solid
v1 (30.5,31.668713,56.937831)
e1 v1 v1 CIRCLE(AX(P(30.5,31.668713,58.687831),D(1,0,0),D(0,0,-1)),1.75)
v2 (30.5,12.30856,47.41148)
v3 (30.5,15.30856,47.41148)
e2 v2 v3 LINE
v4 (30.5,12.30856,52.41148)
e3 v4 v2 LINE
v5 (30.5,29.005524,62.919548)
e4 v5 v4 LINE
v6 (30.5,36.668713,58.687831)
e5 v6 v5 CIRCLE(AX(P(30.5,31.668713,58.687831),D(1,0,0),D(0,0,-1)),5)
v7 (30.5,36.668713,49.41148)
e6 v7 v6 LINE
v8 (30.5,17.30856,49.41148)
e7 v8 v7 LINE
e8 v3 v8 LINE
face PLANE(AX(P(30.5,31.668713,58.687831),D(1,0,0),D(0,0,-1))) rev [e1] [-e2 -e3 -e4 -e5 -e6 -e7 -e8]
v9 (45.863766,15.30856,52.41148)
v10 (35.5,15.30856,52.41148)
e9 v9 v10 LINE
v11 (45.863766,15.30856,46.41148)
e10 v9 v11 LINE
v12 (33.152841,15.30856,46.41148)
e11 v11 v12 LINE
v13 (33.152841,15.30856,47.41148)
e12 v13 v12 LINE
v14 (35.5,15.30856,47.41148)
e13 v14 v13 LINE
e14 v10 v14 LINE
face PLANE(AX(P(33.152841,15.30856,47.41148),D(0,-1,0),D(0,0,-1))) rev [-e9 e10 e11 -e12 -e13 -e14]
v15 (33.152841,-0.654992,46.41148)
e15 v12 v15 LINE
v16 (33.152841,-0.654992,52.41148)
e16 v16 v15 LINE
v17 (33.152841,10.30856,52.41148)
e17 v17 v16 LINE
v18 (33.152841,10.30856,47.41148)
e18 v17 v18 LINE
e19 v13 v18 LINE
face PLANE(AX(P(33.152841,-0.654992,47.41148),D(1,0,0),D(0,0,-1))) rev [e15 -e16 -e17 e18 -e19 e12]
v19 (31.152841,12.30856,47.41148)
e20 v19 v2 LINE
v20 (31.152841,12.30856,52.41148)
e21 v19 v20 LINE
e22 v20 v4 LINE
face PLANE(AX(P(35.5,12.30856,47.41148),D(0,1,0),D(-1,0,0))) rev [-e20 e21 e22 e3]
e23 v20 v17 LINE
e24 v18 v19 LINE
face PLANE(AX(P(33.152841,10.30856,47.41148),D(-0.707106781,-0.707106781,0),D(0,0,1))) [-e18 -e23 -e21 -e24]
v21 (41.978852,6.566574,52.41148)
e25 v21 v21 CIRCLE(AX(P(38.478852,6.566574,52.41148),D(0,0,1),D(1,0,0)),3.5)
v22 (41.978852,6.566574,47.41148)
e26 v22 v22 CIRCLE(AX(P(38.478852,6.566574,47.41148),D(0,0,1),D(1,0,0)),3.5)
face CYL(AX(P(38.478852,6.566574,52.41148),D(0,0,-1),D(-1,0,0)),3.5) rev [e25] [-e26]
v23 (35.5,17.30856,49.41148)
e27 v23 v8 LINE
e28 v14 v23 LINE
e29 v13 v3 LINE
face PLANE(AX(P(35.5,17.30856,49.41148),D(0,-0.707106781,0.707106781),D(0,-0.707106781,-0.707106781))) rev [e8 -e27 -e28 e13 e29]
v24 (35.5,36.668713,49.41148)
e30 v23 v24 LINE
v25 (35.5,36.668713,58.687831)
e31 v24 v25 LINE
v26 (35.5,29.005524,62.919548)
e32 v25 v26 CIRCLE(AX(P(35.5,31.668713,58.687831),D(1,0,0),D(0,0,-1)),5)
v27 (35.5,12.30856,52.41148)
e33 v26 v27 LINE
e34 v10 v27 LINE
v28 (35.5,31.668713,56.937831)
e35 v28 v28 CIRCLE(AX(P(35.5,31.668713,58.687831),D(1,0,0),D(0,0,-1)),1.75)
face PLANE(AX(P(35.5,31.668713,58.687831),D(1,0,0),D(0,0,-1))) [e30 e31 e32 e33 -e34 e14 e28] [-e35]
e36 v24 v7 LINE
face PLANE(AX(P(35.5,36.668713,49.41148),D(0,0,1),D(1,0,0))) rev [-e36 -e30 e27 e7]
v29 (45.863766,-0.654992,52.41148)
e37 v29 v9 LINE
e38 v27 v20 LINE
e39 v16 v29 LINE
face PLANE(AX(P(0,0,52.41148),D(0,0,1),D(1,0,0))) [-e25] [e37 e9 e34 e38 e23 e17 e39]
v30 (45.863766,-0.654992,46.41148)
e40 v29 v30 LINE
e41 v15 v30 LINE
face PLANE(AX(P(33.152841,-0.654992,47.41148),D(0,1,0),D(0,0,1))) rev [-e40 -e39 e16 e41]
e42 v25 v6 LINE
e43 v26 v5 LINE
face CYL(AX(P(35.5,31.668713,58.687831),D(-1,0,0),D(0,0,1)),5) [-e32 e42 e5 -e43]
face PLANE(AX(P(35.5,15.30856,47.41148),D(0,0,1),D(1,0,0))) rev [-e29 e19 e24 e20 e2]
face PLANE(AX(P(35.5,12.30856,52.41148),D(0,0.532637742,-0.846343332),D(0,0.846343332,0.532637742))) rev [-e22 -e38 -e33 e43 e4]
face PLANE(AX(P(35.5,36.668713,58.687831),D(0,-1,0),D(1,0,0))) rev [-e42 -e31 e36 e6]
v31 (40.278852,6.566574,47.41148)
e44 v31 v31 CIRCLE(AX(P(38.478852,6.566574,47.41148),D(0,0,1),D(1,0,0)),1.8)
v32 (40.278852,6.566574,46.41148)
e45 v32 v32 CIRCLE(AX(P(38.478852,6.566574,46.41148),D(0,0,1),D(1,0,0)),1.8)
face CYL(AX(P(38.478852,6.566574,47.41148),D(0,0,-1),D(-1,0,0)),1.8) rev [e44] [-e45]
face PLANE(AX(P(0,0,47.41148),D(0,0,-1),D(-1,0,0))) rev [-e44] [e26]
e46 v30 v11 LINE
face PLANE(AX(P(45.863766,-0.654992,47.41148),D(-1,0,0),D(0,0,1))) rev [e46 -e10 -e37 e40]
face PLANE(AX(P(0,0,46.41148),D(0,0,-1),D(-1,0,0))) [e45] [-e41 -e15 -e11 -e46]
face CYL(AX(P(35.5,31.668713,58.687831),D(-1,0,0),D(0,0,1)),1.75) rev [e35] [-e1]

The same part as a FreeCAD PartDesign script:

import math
import FreeCAD as App
import Part
import Sketcher
from FreeCAD import Vector
Q = App.Units.Quantity


def edges_at(feature, points):
    """Names of the edges that pass closest to the given points."""
    edges = feature.Shape.Edges
    near = lambda p: min(range(len(edges)), key=lambda i: edges[i].distToShape(Part.Vertex(*p))[0])
    return sorted({f"Edge{near(p) + 1}" for p in points})

doc = App.newDocument("Part")
body = doc.addObject("PartDesign::Body", "Body")

sketch1 = body.newObject("Sketcher::SketchObject", "Sketch")
sketch1.AttachmentSupport = (doc.getObject("XY_Plane"), [""])
sketch1.MapMode = "FlatFace"
sketch1.AttachmentOffset = App.Placement(Vector(0, 0, 46.41148), App.Rotation())
sketch1.addGeometry(Part.LineSegment(Vector(33.2, 15.3, 0), Vector(33.2, -0.7, 0)), False)
sketch1.addGeometry(Part.LineSegment(Vector(33.2, -0.7, 0), Vector(45.9, -0.7, 0)), False)
sketch1.addGeometry(Part.LineSegment(Vector(45.9, -0.7, 0), Vector(45.9, 15.3, 0)), False)
sketch1.addGeometry(Part.LineSegment(Vector(45.9, 15.3, 0), Vector(33.2, 15.3, 0)), False)
sketch1.addGeometry(Part.Circle(Vector(38.5, 6.6, 0), Vector(0, 0, 1), 1.8), False)
sketch1.addConstraint(Sketcher.Constraint("Coincident", 0, 2, 1, 1))
sketch1.addConstraint(Sketcher.Constraint("Coincident", 1, 2, 2, 1))
sketch1.addConstraint(Sketcher.Constraint("Coincident", 2, 2, 3, 1))
sketch1.addConstraint(Sketcher.Constraint("Coincident", 3, 2, 0, 1))
sketch1.addConstraint(Sketcher.Constraint("Vertical", 0))
sketch1.addConstraint(Sketcher.Constraint("Horizontal", 1))
sketch1.addConstraint(Sketcher.Constraint("Vertical", 2))
sketch1.addConstraint(Sketcher.Constraint("Horizontal", 3))
sketch1.addConstraint(Sketcher.Constraint("Diameter", 4, Q("3.6 mm")))
sketch1.addConstraint(Sketcher.Constraint("DistanceX", 1, 1, 1, 2, Q("12.710925 mm")))
sketch1.addConstraint(Sketcher.Constraint("DistanceY", 0, 2, 0, 1, Q("15.963552 mm")))
sketch1.addConstraint(Sketcher.Constraint("DistanceX", -1, 1, 0, 2, Q("33.152841 mm")))
sketch1.addConstraint(Sketcher.Constraint("DistanceY", -1, 1, 2, 2, Q("15.30856 mm")))
sketch1.addConstraint(Sketcher.Constraint("DistanceX", 0, 2, 4, 3, Q("5.326012 mm")))
sketch1.addConstraint(Sketcher.Constraint("DistanceY", -1, 1, 4, 3, Q("6.566574 mm")))
pad1 = body.newObject("PartDesign::Pad", "Pad")
pad1.Profile = sketch1
pad1.Length = 1

sketch2 = body.newObject("Sketcher::SketchObject", "Sketch001")
sketch2.AttachmentSupport = (doc.getObject("YZ_Plane"), [""])
sketch2.MapMode = "FlatFace"
sketch2.AttachmentOffset = App.Placement(Vector(0, 0, 30.5), App.Rotation())
sketch2.addGeometry(Part.LineSegment(Vector(36.7, 49.4, 0), Vector(36.7, 58.7, 0)), False)
sketch2.addGeometry(Part.ArcOfCircle(Part.Circle(Vector(31.7, 58.7, 0), Vector(0, 0, 1), 5), math.radians(0), math.radians(122)), False)
sketch2.addGeometry(Part.LineSegment(Vector(29, 62.9, 0), Vector(12.3, 52.4, 0)), False)
sketch2.addGeometry(Part.LineSegment(Vector(12.3, 52.4, 0), Vector(12.3, 47.4, 0)), False)
sketch2.addGeometry(Part.LineSegment(Vector(12.3, 47.4, 0), Vector(15.3, 47.4, 0)), False)
sketch2.addGeometry(Part.LineSegment(Vector(15.3, 47.4, 0), Vector(17.3, 49.4, 0)), False)
sketch2.addGeometry(Part.LineSegment(Vector(17.3, 49.4, 0), Vector(36.7, 49.4, 0)), False)
sketch2.addGeometry(Part.Circle(Vector(31.7, 58.7, 0), Vector(0, 0, 1), 1.8), False)
sketch2.addConstraint(Sketcher.Constraint("Tangent", 0, 2, 1, 1))
sketch2.addConstraint(Sketcher.Constraint("Tangent", 1, 2, 2, 1))
sketch2.addConstraint(Sketcher.Constraint("Coincident", 2, 2, 3, 1))
sketch2.addConstraint(Sketcher.Constraint("Coincident", 3, 2, 4, 1))
sketch2.addConstraint(Sketcher.Constraint("Coincident", 4, 2, 5, 1))
sketch2.addConstraint(Sketcher.Constraint("Coincident", 5, 2, 6, 1))
sketch2.addConstraint(Sketcher.Constraint("Coincident", 6, 2, 0, 1))
sketch2.addConstraint(Sketcher.Constraint("Vertical", 0))
sketch2.addConstraint(Sketcher.Constraint("Vertical", 3))
sketch2.addConstraint(Sketcher.Constraint("Horizontal", 4))
sketch2.addConstraint(Sketcher.Constraint("Horizontal", 6))
sketch2.addConstraint(Sketcher.Constraint("Coincident", 7, 3, 1, 3))
sketch2.addConstraint(Sketcher.Constraint("Radius", 1, Q("5 mm")))
sketch2.addConstraint(Sketcher.Constraint("Diameter", 7, Q("3.5 mm")))
sketch2.addConstraint(Sketcher.Constraint("DistanceX", 4, 1, 4, 2, Q("3 mm")))
sketch2.addConstraint(Sketcher.Constraint("DistanceY", 3, 2, 3, 1, Q("5 mm")))
sketch2.addConstraint(Sketcher.Constraint("Angle", 5, Q("45 deg")))
sketch2.addConstraint(Sketcher.Constraint("DistanceX", 4, 2, 5, 2, Q("2 mm")))
sketch2.addConstraint(Sketcher.Constraint("DistanceY", 0, 1, 0, 2, Q("9.276351 mm")))
sketch2.addConstraint(Sketcher.Constraint("DistanceX", 6, 1, 6, 2, Q("19.360153 mm")))
sketch2.addConstraint(Sketcher.Constraint("DistanceY", -1, 1, 1, 3, Q("58.687831 mm")))
sketch2.addConstraint(Sketcher.Constraint("DistanceX", -1, 1, 2, 2, Q("12.30856 mm")))
pad2 = body.newObject("PartDesign::Pad", "Pad001")
pad2.Profile = sketch2
pad2.Length = 5

sketch3 = body.newObject("Sketcher::SketchObject", "Sketch002")
sketch3.AttachmentSupport = (doc.getObject("XY_Plane"), [""])
sketch3.MapMode = "FlatFace"
sketch3.AttachmentOffset = App.Placement(Vector(0, 0, 47.41148), App.Rotation())
sketch3.addGeometry(Part.LineSegment(Vector(35.5, 15.3, 0), Vector(35.5, 12.3, 0)), False)
sketch3.addGeometry(Part.LineSegment(Vector(35.5, 12.3, 0), Vector(33.2, 12.3, 0)), False)
sketch3.addGeometry(Part.LineSegment(Vector(33.2, 12.3, 0), Vector(33.2, -0.7, 0)), False)
sketch3.addGeometry(Part.LineSegment(Vector(33.2, -0.7, 0), Vector(45.9, -0.7, 0)), False)
sketch3.addGeometry(Part.LineSegment(Vector(45.9, -0.7, 0), Vector(45.9, 15.3, 0)), False)
sketch3.addGeometry(Part.LineSegment(Vector(45.9, 15.3, 0), Vector(35.5, 15.3, 0)), False)
sketch3.addGeometry(Part.Circle(Vector(38.5, 6.6, 0), Vector(0, 0, 1), 3.5), False)
sketch3.addConstraint(Sketcher.Constraint("Coincident", 0, 2, 1, 1))
sketch3.addConstraint(Sketcher.Constraint("Coincident", 1, 2, 2, 1))
sketch3.addConstraint(Sketcher.Constraint("Coincident", 2, 2, 3, 1))
sketch3.addConstraint(Sketcher.Constraint("Coincident", 3, 2, 4, 1))
sketch3.addConstraint(Sketcher.Constraint("Coincident", 4, 2, 5, 1))
sketch3.addConstraint(Sketcher.Constraint("Coincident", 5, 2, 0, 1))
sketch3.addConstraint(Sketcher.Constraint("Vertical", 0))
sketch3.addConstraint(Sketcher.Constraint("Horizontal", 1))
sketch3.addConstraint(Sketcher.Constraint("Vertical", 2))
sketch3.addConstraint(Sketcher.Constraint("Horizontal", 3))
sketch3.addConstraint(Sketcher.Constraint("Vertical", 4))
sketch3.addConstraint(Sketcher.Constraint("Horizontal", 5))
sketch3.addConstraint(Sketcher.Constraint("Diameter", 6, Q("7 mm")))
sketch3.addConstraint(Sketcher.Constraint("DistanceY", 0, 2, 0, 1, Q("3 mm")))
sketch3.addConstraint(Sketcher.Constraint("DistanceX", -1, 1, 0, 2, Q("35.5 mm")))
sketch3.addConstraint(Sketcher.Constraint("DistanceX", 1, 2, 1, 1, Q("2.347159 mm")))
sketch3.addConstraint(Sketcher.Constraint("DistanceX", 3, 1, 3, 2, Q("12.710925 mm")))
sketch3.addConstraint(Sketcher.Constraint("DistanceY", 2, 2, 2, 1, Q("12.963552 mm")))
sketch3.addConstraint(Sketcher.Constraint("DistanceY", -1, 1, 0, 2, Q("12.30856 mm")))
sketch3.addConstraint(Sketcher.Constraint("DistanceX", 1, 2, 6, 3, Q("5.326012 mm")))
sketch3.addConstraint(Sketcher.Constraint("DistanceY", -1, 1, 6, 3, Q("6.566574 mm")))
pad3 = body.newObject("PartDesign::Pad", "Pad002")
pad3.Profile = sketch3
pad3.Length = 5
doc.recompute()

chamfer = body.newObject("PartDesign::Chamfer", "Chamfer")
chamfer.Base = (pad3, edges_at(pad3, [(33.153, 12.309, 49.911)]))
chamfer.Size = 2

doc.recompute()
